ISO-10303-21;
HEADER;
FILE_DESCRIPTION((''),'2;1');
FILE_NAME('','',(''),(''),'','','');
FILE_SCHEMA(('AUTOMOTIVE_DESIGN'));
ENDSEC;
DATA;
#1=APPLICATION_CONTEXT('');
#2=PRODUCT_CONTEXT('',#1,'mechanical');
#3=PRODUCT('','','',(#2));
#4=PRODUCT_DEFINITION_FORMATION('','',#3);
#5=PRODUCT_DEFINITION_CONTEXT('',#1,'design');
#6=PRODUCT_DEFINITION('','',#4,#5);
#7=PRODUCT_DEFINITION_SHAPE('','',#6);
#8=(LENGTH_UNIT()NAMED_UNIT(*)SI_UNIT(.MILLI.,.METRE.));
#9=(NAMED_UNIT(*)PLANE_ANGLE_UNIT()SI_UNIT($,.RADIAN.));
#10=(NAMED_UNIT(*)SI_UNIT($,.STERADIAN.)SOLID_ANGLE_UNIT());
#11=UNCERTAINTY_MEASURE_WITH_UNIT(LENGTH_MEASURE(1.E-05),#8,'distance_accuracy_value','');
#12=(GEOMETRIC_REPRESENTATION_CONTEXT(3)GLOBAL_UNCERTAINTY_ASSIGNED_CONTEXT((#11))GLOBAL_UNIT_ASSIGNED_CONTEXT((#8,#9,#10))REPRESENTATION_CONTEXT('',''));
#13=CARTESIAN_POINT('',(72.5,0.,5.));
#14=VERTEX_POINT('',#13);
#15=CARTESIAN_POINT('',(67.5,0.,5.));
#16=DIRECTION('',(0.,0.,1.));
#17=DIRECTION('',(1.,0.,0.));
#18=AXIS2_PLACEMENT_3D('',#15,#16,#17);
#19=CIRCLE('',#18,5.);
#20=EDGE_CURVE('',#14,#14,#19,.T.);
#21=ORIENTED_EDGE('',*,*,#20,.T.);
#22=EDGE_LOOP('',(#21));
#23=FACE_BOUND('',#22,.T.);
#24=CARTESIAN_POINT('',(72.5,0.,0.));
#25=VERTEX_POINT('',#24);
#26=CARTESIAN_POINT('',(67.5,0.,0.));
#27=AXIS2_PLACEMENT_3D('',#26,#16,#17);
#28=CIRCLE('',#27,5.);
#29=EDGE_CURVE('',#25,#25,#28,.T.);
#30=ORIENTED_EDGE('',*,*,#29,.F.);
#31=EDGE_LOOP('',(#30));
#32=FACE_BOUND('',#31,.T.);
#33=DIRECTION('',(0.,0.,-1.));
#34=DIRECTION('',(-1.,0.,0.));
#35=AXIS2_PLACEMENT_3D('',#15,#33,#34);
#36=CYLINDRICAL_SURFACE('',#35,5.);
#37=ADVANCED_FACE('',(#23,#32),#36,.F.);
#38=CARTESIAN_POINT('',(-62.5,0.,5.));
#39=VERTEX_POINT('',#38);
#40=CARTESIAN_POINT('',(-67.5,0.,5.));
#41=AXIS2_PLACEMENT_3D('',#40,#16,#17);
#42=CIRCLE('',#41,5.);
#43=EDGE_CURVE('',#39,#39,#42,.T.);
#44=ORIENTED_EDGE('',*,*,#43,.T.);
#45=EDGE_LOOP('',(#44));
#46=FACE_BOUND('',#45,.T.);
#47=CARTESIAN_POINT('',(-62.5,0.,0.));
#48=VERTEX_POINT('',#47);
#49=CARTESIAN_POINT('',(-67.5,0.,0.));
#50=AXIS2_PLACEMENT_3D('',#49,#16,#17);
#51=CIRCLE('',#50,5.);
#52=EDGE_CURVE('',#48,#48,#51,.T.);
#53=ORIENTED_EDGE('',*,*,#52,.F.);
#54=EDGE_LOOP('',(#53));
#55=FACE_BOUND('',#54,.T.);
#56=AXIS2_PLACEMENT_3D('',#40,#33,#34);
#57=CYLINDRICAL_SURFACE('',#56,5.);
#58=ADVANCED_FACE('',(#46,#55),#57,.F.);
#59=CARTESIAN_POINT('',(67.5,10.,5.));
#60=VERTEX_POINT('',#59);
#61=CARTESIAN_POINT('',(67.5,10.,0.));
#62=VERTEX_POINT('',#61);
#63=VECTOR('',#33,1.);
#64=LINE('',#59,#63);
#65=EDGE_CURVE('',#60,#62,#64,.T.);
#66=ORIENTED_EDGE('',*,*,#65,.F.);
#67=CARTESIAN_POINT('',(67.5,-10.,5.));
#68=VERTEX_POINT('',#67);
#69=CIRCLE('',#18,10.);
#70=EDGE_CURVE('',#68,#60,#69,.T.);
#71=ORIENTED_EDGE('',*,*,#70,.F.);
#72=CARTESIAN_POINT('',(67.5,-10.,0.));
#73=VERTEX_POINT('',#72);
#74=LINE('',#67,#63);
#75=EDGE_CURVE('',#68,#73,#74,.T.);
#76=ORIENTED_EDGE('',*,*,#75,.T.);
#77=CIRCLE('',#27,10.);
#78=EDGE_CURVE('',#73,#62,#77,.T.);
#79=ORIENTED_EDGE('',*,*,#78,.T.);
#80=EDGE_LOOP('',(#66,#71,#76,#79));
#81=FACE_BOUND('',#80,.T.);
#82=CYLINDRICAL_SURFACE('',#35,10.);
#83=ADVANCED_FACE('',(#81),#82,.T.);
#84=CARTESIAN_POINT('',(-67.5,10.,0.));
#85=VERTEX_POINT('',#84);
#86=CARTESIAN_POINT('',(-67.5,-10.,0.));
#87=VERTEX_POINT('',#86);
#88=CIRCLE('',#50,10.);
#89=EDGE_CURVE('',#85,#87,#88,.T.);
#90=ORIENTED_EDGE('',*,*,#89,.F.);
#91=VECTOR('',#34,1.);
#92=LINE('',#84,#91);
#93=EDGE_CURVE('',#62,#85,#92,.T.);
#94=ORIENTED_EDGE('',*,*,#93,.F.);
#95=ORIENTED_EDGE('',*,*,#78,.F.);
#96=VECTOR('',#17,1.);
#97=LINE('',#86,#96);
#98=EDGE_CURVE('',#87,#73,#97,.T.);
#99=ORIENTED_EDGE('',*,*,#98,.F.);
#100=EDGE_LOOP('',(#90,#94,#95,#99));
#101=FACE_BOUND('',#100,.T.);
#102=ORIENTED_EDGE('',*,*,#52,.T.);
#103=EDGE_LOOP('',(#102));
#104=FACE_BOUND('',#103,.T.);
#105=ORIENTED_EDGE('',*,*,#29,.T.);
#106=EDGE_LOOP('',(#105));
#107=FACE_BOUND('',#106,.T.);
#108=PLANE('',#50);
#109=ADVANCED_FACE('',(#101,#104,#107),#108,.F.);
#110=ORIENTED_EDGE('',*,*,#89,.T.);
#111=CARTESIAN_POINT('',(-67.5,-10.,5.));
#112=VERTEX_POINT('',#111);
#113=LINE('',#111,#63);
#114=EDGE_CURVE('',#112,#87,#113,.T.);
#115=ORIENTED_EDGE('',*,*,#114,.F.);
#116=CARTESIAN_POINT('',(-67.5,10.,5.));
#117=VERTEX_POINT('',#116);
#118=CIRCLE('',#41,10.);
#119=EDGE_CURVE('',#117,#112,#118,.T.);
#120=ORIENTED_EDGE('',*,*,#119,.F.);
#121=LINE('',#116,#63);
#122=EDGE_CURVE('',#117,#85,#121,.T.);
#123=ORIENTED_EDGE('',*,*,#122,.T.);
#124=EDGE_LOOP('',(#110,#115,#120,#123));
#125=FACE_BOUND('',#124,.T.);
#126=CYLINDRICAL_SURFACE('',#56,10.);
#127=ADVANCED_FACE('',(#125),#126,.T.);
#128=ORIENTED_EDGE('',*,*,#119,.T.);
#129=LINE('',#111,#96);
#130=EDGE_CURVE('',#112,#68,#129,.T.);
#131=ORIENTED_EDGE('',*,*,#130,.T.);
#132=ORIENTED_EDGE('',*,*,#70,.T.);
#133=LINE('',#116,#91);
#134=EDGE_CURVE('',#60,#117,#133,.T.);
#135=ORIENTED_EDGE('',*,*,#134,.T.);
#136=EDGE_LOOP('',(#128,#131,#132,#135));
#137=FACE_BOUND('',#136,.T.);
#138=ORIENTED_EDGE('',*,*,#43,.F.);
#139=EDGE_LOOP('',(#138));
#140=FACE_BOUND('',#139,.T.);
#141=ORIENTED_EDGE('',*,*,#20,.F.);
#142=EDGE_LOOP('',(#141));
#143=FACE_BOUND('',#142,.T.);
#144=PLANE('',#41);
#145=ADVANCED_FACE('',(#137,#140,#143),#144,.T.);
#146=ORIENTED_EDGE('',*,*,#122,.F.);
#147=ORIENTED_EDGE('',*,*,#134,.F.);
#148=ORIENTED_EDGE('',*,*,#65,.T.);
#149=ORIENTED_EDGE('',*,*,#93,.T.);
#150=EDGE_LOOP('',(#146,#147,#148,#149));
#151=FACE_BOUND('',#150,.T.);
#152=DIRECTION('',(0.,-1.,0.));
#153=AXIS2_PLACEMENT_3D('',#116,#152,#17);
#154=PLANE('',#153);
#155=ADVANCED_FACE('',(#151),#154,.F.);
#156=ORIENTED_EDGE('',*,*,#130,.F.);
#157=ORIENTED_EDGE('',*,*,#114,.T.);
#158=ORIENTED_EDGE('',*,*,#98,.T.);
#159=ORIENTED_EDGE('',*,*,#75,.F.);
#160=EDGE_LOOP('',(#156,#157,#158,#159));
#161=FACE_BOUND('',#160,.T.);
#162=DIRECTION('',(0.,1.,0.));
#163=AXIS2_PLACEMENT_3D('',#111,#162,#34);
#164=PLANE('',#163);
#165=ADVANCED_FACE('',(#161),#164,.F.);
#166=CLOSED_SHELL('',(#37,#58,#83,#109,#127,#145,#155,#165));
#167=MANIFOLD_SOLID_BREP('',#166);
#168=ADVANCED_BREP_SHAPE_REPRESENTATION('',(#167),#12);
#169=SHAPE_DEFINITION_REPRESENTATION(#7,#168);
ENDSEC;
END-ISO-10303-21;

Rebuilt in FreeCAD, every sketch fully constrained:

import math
import FreeCAD as App
import Part
import Sketcher
from FreeCAD import Vector

doc = App.newDocument("Part")
params = doc.addObject("Spreadsheet::Sheet", "Params")
for row, (alias, value) in enumerate([
    ("sketch1_diameter", "10 mm"),
    ("sketch1_radius", "10 mm"),
    ("sketch1_width", "135 mm"),
    ("pad1_length", "5 mm"),
], start=1):
    params.set(f"A{row}", alias)
    params.set(f"B{row}", "=" + value)
    params.setAlias(f"B{row}", alias)

body = doc.addObject("PartDesign::Body", "Body")

sketch1 = body.newObject("Sketcher::SketchObject", "Sketch")
sketch1.AttachmentSupport = (doc.getObject("XY_Plane"), [""])
sketch1.MapMode = "FlatFace"
sketch1.addGeometry([
    Part.LineSegment(Vector(67.5, 10, 0), Vector(-67.5, 10, 0)),
    Part.ArcOfCircle(Part.Circle(Vector(-67.5, 0, 0), Vector(0, 0, 1), 10), math.radians(90), math.radians(270)),
    Part.LineSegment(Vector(-67.5, -10, 0), Vector(67.5, -10, 0)),
    Part.ArcOfCircle(Part.Circle(Vector(67.5, 0, 0), Vector(0, 0, 1), 10), math.radians(-90), math.radians(90)),
    Part.Circle(Vector(67.5, 0, 0), Vector(0, 0, 1), 5),
    Part.Circle(Vector(-67.5, 0, 0), Vector(0, 0, 1), 5),
], False)
sketch1.addConstraint([
    Sketcher.Constraint("Tangent", 0, 2, 1, 1),
    Sketcher.Constraint("Tangent", 1, 2, 2, 1),
    Sketcher.Constraint("Tangent", 2, 2, 3, 1),
    Sketcher.Constraint("Tangent", 3, 2, 0, 1),
    Sketcher.Constraint("Horizontal", 0),
    Sketcher.Constraint("Horizontal", 2),
    Sketcher.Constraint("Coincident", 4, 3, 3, 3),
    Sketcher.Constraint("Coincident", 5, 3, 1, 3),
    Sketcher.Constraint("Equal", 4, 5),
    Sketcher.Constraint("Symmetric", 1, 3, 3, 3, -1, 1),
    Sketcher.Constraint("Diameter", 4, 10.0),
    Sketcher.Constraint("Radius", 1, 10.0),
    Sketcher.Constraint("DistanceX", 0, 2, 0, 1, 135.0),
])
sketch1.setExpression("Constraints[10]", "Params.sketch1_diameter")
sketch1.setExpression("Constraints[11]", "Params.sketch1_radius")
sketch1.setExpression("Constraints[12]", "Params.sketch1_width")
pad1 = body.newObject("PartDesign::Pad", "Pad")
pad1.Profile = sketch1
pad1.setExpression("Length", "Params.pad1_length")

doc.recompute()
